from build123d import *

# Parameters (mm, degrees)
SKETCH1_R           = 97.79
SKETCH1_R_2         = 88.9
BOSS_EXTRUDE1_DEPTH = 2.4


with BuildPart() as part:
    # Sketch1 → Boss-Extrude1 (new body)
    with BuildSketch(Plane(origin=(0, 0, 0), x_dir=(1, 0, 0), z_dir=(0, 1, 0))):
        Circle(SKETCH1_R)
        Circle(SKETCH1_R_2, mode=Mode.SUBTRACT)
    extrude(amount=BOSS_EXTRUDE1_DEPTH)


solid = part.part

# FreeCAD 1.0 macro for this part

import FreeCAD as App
import Part
import Sketcher
Q = App.Units.Quantity

doc = App.newDocument("Part")
body = doc.addObject("PartDesign::Body", "Body")

sketch1 = doc.addObject("Sketcher::SketchObject", "Sketch")
body.addObject(sketch1)
sketch1.AttachmentSupport = (doc.XZ_Plane, [""])
sketch1.MapMode = "FlatFace"
sketch1.addGeometry([
    Part.Circle(App.Vector(0, 0, 0), App.Vector(0, 0, 1), 98),
    Part.Circle(App.Vector(0, 0, 0), App.Vector(0, 0, 1), 89),
], False)
sketch1.addConstraint([
    Sketcher.Constraint("Coincident", 0, 3, -1, 1),
    Sketcher.Constraint("Coincident", 1, 3, -1, 1),
    Sketcher.Constraint("Diameter", 1, Q("7 in")),
    Sketcher.Constraint("Diameter", 0, Q("7.7 in")),
])
pad1 = doc.addObject("PartDesign::Pad", "Pad")
body.addObject(pad1)
pad1.Profile = sketch1
pad1.Length = 2.4
pad1.Reversed = True

doc.recompute()
